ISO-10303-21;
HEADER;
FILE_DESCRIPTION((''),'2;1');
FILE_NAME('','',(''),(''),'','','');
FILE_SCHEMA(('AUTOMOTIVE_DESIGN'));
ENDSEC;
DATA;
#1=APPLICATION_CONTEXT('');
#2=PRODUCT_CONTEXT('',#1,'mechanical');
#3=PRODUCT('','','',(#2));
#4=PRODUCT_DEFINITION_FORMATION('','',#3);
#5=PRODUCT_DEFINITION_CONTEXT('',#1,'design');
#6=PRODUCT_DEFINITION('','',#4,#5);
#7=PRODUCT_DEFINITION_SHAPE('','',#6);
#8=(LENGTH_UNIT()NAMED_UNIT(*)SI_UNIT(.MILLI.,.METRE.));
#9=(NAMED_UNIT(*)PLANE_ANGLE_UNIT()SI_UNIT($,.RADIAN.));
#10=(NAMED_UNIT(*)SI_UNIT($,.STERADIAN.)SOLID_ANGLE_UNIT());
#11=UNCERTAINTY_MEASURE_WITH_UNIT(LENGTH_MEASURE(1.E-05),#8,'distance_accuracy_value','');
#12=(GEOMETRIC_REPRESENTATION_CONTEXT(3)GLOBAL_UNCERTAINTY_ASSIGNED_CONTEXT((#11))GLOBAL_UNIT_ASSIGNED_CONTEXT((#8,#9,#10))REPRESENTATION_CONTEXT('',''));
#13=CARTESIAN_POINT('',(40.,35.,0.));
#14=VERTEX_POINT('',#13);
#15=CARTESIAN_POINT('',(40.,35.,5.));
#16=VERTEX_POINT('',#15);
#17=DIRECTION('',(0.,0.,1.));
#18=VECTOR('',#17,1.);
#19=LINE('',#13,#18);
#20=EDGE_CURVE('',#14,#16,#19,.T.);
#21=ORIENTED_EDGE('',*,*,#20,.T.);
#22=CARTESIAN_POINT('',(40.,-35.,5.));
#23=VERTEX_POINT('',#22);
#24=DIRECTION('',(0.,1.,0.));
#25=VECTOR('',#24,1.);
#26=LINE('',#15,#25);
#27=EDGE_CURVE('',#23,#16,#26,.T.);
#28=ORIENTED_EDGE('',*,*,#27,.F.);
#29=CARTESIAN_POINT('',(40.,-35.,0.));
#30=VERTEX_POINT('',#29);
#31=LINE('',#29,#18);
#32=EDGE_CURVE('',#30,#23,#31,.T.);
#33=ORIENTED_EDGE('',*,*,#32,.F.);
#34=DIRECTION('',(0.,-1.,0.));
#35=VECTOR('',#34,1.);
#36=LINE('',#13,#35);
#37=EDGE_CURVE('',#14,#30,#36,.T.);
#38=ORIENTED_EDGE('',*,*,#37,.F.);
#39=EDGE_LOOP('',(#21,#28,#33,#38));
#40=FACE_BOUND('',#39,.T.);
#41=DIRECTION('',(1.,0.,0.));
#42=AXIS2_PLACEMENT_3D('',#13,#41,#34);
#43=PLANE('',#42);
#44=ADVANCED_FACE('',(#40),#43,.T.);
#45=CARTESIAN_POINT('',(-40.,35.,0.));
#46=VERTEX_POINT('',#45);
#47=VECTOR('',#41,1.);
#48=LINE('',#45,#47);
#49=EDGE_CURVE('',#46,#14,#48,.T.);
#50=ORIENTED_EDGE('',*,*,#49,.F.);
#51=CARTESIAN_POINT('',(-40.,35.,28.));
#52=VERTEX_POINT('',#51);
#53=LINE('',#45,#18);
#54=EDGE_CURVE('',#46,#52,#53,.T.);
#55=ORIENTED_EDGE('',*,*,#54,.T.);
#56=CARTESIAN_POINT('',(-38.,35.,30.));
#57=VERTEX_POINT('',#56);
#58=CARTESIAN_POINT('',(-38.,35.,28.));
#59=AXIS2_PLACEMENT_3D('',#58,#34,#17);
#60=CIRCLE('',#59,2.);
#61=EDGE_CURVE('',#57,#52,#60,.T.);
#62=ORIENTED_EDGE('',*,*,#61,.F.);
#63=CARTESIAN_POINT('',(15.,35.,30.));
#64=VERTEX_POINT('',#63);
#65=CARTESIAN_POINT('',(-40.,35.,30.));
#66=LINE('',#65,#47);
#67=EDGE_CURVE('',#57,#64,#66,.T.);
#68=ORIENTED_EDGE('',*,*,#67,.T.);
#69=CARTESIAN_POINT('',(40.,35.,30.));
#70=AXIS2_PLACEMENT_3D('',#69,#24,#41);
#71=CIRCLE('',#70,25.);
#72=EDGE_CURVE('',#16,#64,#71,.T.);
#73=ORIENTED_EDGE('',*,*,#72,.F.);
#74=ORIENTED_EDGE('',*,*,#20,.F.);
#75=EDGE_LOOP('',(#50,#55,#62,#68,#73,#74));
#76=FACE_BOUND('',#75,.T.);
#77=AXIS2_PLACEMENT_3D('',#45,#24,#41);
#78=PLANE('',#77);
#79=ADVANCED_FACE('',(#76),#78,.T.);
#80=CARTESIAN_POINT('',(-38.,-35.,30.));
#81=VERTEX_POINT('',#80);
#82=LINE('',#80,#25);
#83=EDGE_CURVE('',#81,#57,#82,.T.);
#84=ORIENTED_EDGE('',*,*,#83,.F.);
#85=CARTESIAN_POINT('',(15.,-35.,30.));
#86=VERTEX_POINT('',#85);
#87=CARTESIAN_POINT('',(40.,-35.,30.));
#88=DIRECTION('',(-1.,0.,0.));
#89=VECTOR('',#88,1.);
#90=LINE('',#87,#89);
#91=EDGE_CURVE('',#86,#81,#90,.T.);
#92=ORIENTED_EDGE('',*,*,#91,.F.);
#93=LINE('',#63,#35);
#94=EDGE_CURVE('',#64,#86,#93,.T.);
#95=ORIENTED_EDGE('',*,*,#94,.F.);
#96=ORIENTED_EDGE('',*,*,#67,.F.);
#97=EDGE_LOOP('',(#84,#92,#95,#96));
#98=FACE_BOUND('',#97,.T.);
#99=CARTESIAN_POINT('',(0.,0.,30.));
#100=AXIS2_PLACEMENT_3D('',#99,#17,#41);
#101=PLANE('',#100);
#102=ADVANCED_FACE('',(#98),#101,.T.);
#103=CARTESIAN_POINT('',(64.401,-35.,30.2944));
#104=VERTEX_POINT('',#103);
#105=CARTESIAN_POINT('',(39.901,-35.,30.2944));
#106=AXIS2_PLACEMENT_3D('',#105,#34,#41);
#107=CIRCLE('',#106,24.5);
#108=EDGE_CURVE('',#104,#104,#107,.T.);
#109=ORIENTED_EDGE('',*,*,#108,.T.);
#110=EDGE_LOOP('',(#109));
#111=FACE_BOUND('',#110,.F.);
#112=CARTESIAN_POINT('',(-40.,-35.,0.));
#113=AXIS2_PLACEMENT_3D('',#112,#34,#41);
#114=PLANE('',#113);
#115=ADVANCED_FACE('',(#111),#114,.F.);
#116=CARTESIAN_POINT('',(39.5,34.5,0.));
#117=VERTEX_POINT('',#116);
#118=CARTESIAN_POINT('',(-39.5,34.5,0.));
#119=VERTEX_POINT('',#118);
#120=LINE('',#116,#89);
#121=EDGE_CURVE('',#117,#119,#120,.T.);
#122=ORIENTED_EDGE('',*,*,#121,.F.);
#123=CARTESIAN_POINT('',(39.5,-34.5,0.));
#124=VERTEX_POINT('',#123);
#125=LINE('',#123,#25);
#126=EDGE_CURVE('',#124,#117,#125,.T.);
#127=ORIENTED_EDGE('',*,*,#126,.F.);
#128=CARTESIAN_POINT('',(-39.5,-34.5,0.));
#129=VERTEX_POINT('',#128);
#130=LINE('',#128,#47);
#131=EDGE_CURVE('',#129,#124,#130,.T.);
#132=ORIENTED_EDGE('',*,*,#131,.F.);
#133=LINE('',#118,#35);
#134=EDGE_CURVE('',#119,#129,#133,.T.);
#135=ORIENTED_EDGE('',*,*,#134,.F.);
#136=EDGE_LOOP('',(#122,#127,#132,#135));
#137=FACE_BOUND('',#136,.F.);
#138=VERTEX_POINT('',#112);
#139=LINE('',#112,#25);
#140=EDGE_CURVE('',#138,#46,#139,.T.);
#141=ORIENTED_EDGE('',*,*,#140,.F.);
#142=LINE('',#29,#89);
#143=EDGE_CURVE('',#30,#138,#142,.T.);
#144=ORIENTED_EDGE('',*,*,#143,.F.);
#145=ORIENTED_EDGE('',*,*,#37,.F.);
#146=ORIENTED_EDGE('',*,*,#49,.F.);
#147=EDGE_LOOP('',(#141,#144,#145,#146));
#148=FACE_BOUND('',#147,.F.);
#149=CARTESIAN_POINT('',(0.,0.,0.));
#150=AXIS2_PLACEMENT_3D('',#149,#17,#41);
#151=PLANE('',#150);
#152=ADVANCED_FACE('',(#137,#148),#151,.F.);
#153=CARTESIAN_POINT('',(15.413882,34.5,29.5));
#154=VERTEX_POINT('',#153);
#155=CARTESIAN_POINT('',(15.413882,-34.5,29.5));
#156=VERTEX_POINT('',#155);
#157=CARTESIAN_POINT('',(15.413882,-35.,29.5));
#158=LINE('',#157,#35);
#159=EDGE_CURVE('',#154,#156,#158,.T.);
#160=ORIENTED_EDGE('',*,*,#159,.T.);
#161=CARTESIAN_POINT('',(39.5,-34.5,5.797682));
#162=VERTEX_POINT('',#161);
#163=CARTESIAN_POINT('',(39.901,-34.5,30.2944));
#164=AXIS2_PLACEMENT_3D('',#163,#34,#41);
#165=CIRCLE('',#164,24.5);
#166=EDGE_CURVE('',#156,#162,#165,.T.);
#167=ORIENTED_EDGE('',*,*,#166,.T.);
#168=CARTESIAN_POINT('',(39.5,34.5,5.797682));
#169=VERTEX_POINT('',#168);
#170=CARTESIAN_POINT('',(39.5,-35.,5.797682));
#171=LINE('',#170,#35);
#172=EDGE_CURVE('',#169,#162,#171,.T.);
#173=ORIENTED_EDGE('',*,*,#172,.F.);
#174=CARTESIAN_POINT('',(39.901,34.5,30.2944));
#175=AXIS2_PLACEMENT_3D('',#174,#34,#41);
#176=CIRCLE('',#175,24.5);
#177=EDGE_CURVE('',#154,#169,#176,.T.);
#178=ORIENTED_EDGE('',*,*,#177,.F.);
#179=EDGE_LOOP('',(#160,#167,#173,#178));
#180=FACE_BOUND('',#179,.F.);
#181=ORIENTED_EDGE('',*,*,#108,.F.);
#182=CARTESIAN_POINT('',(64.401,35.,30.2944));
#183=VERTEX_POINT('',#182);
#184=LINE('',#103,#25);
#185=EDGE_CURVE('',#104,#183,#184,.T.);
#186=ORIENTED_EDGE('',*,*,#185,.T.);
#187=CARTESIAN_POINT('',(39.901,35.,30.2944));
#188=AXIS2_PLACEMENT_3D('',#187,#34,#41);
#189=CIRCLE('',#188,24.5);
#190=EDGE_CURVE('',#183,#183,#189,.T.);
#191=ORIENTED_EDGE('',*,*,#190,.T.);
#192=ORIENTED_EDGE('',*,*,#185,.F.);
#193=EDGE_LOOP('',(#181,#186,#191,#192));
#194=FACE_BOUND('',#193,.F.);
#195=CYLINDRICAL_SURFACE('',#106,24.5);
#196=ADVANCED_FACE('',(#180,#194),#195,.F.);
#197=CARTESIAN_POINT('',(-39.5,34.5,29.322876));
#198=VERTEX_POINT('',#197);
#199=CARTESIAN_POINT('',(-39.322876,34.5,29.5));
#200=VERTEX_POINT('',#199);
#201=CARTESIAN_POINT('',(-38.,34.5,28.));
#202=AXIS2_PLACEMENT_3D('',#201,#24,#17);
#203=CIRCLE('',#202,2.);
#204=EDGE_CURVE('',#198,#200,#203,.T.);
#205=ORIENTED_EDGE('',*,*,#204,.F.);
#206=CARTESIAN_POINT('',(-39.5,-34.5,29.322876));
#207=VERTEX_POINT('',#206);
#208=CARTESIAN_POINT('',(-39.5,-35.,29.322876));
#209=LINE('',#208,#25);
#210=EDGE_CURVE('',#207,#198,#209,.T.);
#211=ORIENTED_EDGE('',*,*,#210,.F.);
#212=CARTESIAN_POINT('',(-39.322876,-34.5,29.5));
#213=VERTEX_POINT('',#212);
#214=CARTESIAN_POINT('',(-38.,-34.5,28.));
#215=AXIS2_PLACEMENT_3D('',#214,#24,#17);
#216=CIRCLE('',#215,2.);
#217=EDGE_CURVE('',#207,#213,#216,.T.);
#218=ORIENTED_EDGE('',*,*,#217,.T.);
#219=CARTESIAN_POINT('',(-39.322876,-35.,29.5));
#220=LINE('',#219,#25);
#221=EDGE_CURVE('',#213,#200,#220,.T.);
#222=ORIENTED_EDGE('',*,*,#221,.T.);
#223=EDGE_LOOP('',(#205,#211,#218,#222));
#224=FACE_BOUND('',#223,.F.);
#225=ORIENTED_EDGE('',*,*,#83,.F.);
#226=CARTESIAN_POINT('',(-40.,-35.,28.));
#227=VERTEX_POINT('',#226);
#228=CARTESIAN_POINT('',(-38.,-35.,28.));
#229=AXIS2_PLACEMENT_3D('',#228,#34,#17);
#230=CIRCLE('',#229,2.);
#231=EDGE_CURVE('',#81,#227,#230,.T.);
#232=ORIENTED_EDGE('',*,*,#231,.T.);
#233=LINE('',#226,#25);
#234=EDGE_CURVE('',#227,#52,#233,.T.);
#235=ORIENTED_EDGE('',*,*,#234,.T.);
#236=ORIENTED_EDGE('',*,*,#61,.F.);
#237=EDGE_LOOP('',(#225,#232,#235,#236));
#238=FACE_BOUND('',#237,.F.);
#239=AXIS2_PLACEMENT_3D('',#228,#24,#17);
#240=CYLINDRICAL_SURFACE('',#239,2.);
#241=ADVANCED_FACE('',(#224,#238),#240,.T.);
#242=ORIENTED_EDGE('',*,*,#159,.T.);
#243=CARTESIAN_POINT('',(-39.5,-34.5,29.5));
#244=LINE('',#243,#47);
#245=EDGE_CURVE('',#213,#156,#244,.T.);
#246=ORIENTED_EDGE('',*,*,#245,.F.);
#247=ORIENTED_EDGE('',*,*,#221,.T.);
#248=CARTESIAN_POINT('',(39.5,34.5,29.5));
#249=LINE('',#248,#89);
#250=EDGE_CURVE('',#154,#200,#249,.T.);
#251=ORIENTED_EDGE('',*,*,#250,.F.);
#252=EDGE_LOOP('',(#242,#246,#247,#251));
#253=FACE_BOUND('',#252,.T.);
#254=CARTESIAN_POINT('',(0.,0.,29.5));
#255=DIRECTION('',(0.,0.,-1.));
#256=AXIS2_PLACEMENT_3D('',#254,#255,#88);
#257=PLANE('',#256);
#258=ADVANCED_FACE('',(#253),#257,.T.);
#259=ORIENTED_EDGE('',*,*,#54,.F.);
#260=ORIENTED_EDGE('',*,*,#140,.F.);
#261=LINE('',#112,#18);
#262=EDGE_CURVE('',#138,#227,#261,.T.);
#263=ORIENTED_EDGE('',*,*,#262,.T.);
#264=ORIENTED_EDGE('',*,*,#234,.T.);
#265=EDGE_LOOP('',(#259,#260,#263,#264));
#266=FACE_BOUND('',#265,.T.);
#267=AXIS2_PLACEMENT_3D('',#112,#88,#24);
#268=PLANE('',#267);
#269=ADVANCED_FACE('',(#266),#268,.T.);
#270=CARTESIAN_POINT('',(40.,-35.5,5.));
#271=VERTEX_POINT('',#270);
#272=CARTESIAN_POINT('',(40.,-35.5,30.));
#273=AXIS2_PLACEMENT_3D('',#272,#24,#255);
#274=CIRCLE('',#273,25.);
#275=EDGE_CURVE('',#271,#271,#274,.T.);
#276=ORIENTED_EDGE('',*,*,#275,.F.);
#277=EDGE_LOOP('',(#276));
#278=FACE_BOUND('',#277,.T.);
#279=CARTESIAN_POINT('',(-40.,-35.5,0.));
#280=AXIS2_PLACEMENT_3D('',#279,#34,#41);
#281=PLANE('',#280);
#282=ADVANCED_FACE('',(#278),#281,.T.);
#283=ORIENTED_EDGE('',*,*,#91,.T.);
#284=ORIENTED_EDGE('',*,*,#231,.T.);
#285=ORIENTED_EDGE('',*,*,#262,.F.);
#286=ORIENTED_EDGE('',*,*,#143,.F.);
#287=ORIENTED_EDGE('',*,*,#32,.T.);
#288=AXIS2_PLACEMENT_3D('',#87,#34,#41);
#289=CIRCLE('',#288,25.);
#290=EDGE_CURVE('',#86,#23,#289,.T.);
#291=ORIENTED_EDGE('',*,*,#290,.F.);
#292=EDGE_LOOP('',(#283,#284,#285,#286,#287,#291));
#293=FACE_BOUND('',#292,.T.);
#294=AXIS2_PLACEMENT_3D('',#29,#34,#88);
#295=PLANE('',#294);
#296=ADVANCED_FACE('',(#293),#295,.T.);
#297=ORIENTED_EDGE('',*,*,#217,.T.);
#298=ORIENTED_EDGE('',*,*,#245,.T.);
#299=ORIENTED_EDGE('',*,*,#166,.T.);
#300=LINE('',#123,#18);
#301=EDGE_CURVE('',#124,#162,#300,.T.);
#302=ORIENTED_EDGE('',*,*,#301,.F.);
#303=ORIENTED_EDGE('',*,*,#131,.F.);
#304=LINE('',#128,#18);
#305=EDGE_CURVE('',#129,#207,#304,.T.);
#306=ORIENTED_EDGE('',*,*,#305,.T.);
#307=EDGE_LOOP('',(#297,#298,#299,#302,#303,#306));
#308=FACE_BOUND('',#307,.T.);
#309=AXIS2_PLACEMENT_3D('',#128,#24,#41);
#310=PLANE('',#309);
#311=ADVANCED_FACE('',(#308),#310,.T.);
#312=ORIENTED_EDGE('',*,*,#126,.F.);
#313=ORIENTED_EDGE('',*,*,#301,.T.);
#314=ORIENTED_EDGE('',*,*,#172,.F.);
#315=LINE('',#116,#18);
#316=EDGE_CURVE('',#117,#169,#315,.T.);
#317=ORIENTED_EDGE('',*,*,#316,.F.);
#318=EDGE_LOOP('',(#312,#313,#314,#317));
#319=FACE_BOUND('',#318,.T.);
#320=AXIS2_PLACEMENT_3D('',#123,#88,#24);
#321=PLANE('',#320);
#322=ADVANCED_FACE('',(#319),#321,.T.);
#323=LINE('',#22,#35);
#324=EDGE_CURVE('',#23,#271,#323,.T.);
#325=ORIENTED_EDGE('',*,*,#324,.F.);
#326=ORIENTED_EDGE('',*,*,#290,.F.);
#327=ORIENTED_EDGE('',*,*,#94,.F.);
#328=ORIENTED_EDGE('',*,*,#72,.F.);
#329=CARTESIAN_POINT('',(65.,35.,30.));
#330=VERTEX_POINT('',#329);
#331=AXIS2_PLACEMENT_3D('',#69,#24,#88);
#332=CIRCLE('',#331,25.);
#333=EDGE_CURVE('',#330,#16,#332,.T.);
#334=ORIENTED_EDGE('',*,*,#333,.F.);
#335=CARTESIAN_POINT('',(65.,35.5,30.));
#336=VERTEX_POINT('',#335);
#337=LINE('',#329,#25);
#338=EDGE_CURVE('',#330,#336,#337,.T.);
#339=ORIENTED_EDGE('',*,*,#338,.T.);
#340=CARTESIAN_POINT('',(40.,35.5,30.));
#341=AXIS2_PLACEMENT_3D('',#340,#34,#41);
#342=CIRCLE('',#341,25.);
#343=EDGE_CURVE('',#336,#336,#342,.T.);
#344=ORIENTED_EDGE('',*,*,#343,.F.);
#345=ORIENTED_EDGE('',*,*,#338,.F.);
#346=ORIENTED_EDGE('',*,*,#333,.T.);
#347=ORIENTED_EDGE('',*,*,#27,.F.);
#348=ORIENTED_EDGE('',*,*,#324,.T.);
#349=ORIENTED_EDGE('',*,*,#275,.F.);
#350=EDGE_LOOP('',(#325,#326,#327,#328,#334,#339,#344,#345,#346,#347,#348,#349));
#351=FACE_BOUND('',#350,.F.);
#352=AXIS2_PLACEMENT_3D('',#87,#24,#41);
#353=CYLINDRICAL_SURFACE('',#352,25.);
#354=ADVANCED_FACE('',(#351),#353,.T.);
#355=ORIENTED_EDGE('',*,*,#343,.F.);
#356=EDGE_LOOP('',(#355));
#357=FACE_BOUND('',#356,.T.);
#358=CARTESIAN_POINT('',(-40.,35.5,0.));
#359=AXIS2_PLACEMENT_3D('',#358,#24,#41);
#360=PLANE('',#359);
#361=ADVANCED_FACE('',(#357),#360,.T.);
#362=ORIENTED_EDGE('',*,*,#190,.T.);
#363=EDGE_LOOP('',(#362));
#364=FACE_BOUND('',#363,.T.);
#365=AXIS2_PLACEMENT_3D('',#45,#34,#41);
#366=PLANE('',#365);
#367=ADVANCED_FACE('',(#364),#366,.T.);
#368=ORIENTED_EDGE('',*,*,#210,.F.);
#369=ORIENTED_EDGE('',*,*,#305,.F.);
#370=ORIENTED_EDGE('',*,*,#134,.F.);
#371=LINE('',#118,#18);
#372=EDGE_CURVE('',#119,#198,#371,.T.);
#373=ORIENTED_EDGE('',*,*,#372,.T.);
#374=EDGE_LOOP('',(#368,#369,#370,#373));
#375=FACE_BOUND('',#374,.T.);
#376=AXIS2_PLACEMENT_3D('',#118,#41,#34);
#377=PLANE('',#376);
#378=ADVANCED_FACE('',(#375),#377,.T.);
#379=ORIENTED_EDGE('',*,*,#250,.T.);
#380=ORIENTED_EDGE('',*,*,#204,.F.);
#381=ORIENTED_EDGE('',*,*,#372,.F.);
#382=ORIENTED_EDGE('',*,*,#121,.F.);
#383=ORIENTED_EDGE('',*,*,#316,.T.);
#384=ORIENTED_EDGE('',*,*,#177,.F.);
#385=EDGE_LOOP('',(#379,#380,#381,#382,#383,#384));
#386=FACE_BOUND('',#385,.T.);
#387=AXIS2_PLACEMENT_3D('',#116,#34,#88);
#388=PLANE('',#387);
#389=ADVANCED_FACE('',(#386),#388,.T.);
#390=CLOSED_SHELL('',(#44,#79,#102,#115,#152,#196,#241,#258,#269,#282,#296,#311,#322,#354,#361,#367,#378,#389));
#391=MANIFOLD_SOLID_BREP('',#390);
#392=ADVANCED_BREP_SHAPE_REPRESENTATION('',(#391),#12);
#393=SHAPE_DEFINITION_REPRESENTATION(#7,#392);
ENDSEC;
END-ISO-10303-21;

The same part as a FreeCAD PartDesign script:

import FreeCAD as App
import Part
import Sketcher
from FreeCAD import Vector


def edges_at(feature, points):
    """Names of the edges that pass closest to the given points."""
    edges = feature.Shape.Edges
    near = lambda p: min(range(len(edges)), key=lambda i: edges[i].distToShape(Part.Vertex(*p))[0])
    return sorted({f"Edge{near(p) + 1}" for p in points})

doc = App.newDocument("Part")
params = doc.addObject("Spreadsheet::Sheet", "Params")
for row, (alias, value) in enumerate([
    ("sketch1_width", "80 mm"),
    ("sketch1_height", "70 mm"),
    ("pad1_length", "30 mm"),
    ("sketch2_diameter", "50 mm"),
    ("pad2_length", "70 mm"),
    ("sketch3_diameter", "50 mm"),
    ("pad3_length", "0.5 mm"),
    ("fillet_radius", "2 mm"),
    ("sketch4_diameter", "49 mm"),
    ("pocket1_length", "70 mm"),
    ("sketch5_diameter", "50 mm"),
    ("pad4_length", "0.5 mm"),
    ("sketch6_width", "79 mm"),
    ("sketch6_height", "69 mm"),
    ("pocket2_length", "29.5 mm"),
], start=1):
    params.set(f"A{row}", alias)
    params.set(f"B{row}", "=" + value)
    params.setAlias(f"B{row}", alias)

body = doc.addObject("PartDesign::Body", "Body")

# Sketch on XY plane
sketch1 = body.newObject("Sketcher::SketchObject", "Sketch")
sketch1.AttachmentSupport = (doc.getObject("XY_Plane"), [""])
sketch1.MapMode = "FlatFace"
sketch1.addGeometry(Part.LineSegment(Vector(40, 35, 0), Vector(-40, 35, 0)), False)
sketch1.addGeometry(Part.LineSegment(Vector(-40, 35, 0), Vector(-40, -35, 0)), False)
sketch1.addGeometry(Part.LineSegment(Vector(-40, -35, 0), Vector(40, -35, 0)), False)
sketch1.addGeometry(Part.LineSegment(Vector(40, -35, 0), Vector(40, 35, 0)), False)
sketch1.addConstraint(Sketcher.Constraint("Coincident", 0, 2, 1, 1))
sketch1.addConstraint(Sketcher.Constraint("Coincident", 1, 2, 2, 1))
sketch1.addConstraint(Sketcher.Constraint("Coincident", 2, 2, 3, 1))
sketch1.addConstraint(Sketcher.Constraint("Coincident", 3, 2, 0, 1))
sketch1.addConstraint(Sketcher.Constraint("Horizontal", 0))
sketch1.addConstraint(Sketcher.Constraint("Vertical", 1))
sketch1.addConstraint(Sketcher.Constraint("Horizontal", 2))
sketch1.addConstraint(Sketcher.Constraint("Vertical", 3))
sketch1.addConstraint(Sketcher.Constraint("Symmetric", 0, 2, 2, 2, -1, 1))
sketch1.addConstraint(Sketcher.Constraint("DistanceX", 0, 2, 0, 1, 80.0))
sketch1.addConstraint(Sketcher.Constraint("DistanceY", 1, 2, 1, 1, 70.0))
sketch1.setExpression("Constraints[9]", "Params.sketch1_width")
sketch1.setExpression("Constraints[10]", "Params.sketch1_height")
pad1 = body.newObject("PartDesign::Pad", "Pad")
pad1.Profile = sketch1
pad1.setExpression("Length", "Params.pad1_length")

# Sketch on XZ plane
sketch2 = body.newObject("Sketcher::SketchObject", "Sketch001")
sketch2.AttachmentSupport = (doc.getObject("XZ_Plane"), [""])
sketch2.MapMode = "FlatFace"
sketch2.AttachmentOffset = App.Placement(Vector(0, 0, -35), App.Rotation())
sketch2.addGeometry(Part.Circle(Vector(40, 30, 0), Vector(0, 0, 1), 25), False)
sketch2.addConstraint(Sketcher.Constraint("Diameter", 0, 50.0))
sketch2.addConstraint(Sketcher.Constraint("DistanceX", -1, 1, 0, 3, 40.0))
sketch2.addConstraint(Sketcher.Constraint("DistanceY", -1, 1, 0, 3, 30.0))
sketch2.setExpression("Constraints[0]", "Params.sketch2_diameter")
pad2 = body.newObject("PartDesign::Pad", "Pad001")
pad2.Profile = sketch2
pad2.setExpression("Length", "Params.pad2_length")

# Sketch on XZ plane
sketch3 = body.newObject("Sketcher::SketchObject", "Sketch002")
sketch3.AttachmentSupport = (doc.getObject("XZ_Plane"), [""])
sketch3.MapMode = "FlatFace"
sketch3.AttachmentOffset = App.Placement(Vector(0, 0, -35), App.Rotation())
sketch3.addGeometry(Part.Circle(Vector(40, 30, 0), Vector(0, 0, 1), 25), False)
sketch3.addConstraint(Sketcher.Constraint("Diameter", 0, 50.0))
sketch3.addConstraint(Sketcher.Constraint("DistanceX", -1, 1, 0, 3, 40.0))
sketch3.addConstraint(Sketcher.Constraint("DistanceY", -1, 1, 0, 3, 30.0))
sketch3.setExpression("Constraints[0]", "Params.sketch3_diameter")
pad3 = body.newObject("PartDesign::Pad", "Pad002")
pad3.Profile = sketch3
pad3.setExpression("Length", "Params.pad3_length")
pad3.Reversed = True
doc.recompute()

fillet = body.newObject("PartDesign::Fillet", "Fillet")
fillet.Base = (pad3, edges_at(pad3, [(-40, 0, 30)]))
fillet.setExpression("Radius", "Params.fillet_radius")

# Sketch on XZ plane
sketch4 = body.newObject("Sketcher::SketchObject", "Sketch003")
sketch4.AttachmentSupport = (doc.getObject("XZ_Plane"), [""])
sketch4.MapMode = "FlatFace"
sketch4.AttachmentOffset = App.Placement(Vector(0, 0, 35), App.Rotation())
sketch4.addGeometry(Part.Circle(Vector(40, 30, 0), Vector(0, 0, 1), 24), False)
sketch4.addConstraint(Sketcher.Constraint("Diameter", 0, 49.0))
sketch4.addConstraint(Sketcher.Constraint("DistanceX", -1, 1, 0, 3, 39.901))
sketch4.addConstraint(Sketcher.Constraint("DistanceY", -1, 1, 0, 3, 30.2944))
sketch4.setExpression("Constraints[0]", "Params.sketch4_diameter")
pocket1 = body.newObject("PartDesign::Pocket", "Pocket")
pocket1.Profile = sketch4
pocket1.setExpression("Length", "Params.pocket1_length")

# Sketch on XZ plane
sketch5 = body.newObject("Sketcher::SketchObject", "Sketch004")
sketch5.AttachmentSupport = (doc.getObject("XZ_Plane"), [""])
sketch5.MapMode = "FlatFace"
sketch5.AttachmentOffset = App.Placement(Vector(0, 0, 35), App.Rotation())
sketch5.addGeometry(Part.Circle(Vector(40, 30, 0), Vector(0, 0, 1), 25), False)
sketch5.addConstraint(Sketcher.Constraint("Diameter", 0, 50.0))
sketch5.addConstraint(Sketcher.Constraint("DistanceX", -1, 1, 0, 3, 40.0))
sketch5.addConstraint(Sketcher.Constraint("DistanceY", -1, 1, 0, 3, 30.0))
sketch5.setExpression("Constraints[0]", "Params.sketch5_diameter")
pad4 = body.newObject("PartDesign::Pad", "Pad003")
pad4.Profile = sketch5
pad4.setExpression("Length", "Params.pad4_length")

# Sketch on XY plane
sketch6 = body.newObject("Sketcher::SketchObject", "Sketch005")
sketch6.AttachmentSupport = (doc.getObject("XY_Plane"), [""])
sketch6.MapMode = "FlatFace"
sketch6.addGeometry(Part.LineSegment(Vector(40, -34, 0), Vector(-40, -34, 0)), False)
sketch6.addGeometry(Part.LineSegment(Vector(-40, -34, 0), Vector(-40, 34, 0)), False)
sketch6.addGeometry(Part.LineSegment(Vector(-40, 34, 0), Vector(40, 34, 0)), False)
sketch6.addGeometry(Part.LineSegment(Vector(40, 34, 0), Vector(40, -34, 0)), False)
sketch6.addConstraint(Sketcher.Constraint("Coincident", 0, 2, 1, 1))
sketch6.addConstraint(Sketcher.Constraint("Coincident", 1, 2, 2, 1))
sketch6.addConstraint(Sketcher.Constraint("Coincident", 2, 2, 3, 1))
sketch6.addConstraint(Sketcher.Constraint("Coincident", 3, 2, 0, 1))
sketch6.addConstraint(Sketcher.Constraint("Horizontal", 0))
sketch6.addConstraint(Sketcher.Constraint("Vertical", 1))
sketch6.addConstraint(Sketcher.Constraint("Horizontal", 2))
sketch6.addConstraint(Sketcher.Constraint("Vertical", 3))
sketch6.addConstraint(Sketcher.Constraint("Symmetric", 0, 2, 2, 2, -1, 1))
sketch6.addConstraint(Sketcher.Constraint("DistanceX", 0, 2, 0, 1, 79.0))
sketch6.addConstraint(Sketcher.Constraint("DistanceY", 1, 1, 1, 2, 69.0))
sketch6.setExpression("Constraints[9]", "Params.sketch6_width")
sketch6.setExpression("Constraints[10]", "Params.sketch6_height")
pocket2 = body.newObject("PartDesign::Pocket", "Pocket001")
pocket2.Profile = sketch6
pocket2.setExpression("Length", "Params.pocket2_length")
pocket2.Reversed = True

doc.recompute()
